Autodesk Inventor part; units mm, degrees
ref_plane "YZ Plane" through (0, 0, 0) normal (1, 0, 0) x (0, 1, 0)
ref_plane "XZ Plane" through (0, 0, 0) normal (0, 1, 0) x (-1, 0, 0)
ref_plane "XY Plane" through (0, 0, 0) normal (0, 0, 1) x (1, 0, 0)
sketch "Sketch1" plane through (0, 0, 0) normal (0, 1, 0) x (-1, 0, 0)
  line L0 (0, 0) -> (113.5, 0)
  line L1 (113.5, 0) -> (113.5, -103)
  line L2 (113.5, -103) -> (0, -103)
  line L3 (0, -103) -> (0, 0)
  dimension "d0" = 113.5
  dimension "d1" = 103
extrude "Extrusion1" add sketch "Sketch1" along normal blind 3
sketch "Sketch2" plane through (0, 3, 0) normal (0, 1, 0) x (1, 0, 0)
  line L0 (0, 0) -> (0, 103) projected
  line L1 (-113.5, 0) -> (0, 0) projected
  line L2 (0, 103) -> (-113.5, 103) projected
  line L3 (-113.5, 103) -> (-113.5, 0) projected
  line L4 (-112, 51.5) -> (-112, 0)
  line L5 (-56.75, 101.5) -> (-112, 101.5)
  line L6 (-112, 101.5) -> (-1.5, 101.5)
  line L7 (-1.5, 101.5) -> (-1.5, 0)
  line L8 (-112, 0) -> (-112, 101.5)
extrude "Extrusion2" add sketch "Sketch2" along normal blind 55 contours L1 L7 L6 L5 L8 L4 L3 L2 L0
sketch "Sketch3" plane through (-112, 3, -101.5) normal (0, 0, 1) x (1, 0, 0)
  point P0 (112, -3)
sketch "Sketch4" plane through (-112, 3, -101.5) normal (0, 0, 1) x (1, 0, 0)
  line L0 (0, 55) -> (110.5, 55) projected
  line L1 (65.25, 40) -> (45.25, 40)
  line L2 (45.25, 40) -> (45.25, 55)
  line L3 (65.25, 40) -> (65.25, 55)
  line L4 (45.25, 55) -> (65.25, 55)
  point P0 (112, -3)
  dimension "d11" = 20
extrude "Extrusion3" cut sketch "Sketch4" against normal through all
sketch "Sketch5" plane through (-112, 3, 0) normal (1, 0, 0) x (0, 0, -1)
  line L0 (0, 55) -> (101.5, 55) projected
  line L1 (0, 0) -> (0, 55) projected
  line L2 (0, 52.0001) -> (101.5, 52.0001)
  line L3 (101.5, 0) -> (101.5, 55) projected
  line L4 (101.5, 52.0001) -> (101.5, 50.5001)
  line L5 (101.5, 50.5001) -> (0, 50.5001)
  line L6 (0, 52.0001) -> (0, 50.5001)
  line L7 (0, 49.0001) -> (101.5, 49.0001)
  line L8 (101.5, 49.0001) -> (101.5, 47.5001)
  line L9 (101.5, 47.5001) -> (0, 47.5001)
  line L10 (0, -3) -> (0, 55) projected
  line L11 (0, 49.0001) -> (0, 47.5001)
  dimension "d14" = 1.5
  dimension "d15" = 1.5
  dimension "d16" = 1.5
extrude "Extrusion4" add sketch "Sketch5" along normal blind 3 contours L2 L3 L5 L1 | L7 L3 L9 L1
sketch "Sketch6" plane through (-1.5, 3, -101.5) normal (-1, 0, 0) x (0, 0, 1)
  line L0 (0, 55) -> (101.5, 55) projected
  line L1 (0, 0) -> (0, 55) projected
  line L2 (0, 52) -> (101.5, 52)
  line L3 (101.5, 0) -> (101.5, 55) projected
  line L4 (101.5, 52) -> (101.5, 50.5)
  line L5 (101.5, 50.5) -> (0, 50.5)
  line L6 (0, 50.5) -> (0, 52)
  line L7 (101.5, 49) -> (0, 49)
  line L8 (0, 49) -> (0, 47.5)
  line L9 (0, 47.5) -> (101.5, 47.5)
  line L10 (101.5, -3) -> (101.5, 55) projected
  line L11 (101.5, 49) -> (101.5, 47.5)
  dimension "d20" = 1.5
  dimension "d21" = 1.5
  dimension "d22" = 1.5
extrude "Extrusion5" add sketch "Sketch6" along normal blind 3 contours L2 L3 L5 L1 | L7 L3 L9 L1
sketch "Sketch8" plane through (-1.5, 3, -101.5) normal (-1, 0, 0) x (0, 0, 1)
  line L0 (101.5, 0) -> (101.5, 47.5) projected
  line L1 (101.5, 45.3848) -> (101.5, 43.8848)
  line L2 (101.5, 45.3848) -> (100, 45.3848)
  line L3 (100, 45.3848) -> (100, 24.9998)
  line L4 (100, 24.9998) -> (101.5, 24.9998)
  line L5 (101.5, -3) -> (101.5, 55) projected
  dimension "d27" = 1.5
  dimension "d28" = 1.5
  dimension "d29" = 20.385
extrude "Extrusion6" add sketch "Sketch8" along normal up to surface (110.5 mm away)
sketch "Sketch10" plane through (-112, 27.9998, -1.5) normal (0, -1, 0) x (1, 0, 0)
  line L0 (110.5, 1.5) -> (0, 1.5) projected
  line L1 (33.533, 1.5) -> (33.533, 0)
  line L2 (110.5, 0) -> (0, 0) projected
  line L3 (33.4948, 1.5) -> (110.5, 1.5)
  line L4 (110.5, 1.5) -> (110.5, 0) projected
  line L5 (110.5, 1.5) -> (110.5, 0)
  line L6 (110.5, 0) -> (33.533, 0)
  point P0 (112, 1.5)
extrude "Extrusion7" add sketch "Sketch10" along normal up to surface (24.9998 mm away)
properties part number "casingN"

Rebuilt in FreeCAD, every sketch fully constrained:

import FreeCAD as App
import Part
import Sketcher

V = App.Vector
Q = App.Units.Quantity


def add_polygon(sketch, points):
    """Adds a closed chain of lines whose ends are joined by coincident constraints."""
    first, n = sketch.GeometryCount, len(points)
    for a, b in zip(points, points[1:] + points[:1]):
        sketch.addGeometry(Part.LineSegment(App.Vector(*a, 0), App.Vector(*b, 0)), False)
    for i in range(n):
        sketch.addConstraint(Sketcher.Constraint("Coincident", first + i, 2, first + (i + 1) % n, 1))

doc = App.newDocument("Part")
body = doc.addObject("PartDesign::Body", "Body")

# Sketch on XZ plane
sketch1 = body.newObject("Sketcher::SketchObject", "Sketch")
sketch1.AttachmentSupport = (doc.getObject("XZ_Plane"), [""])
sketch1.MapMode = "FlatFace"
add_polygon(sketch1, [(-114, 0), (0, 0), (0, -103), (-114, -103)])  # lines 0-3
sketch1.addConstraint([
    Sketcher.Constraint("Horizontal", 0),
    Sketcher.Constraint("Vertical", 1),
    Sketcher.Constraint("Horizontal", 2),
    Sketcher.Constraint("Vertical", 3),
    Sketcher.Constraint("Coincident", 0, 2, -1, 1),
    Sketcher.Constraint("DistanceY", 1, 2, 1, 1, Q("103 mm")),
    Sketcher.Constraint("DistanceX", 0, 1, 0, 2, Q("113.5 mm")),
])
pad1 = body.newObject("PartDesign::Pad", "Pad")
pad1.Profile = sketch1
pad1.Length = 3
pad1.Reversed = True

# Sketch on XZ plane
sketch2 = body.newObject("Sketcher::SketchObject", "Sketch001")
sketch2.AttachmentSupport = (doc.getObject("XZ_Plane"), [""])
sketch2.MapMode = "FlatFace"
sketch2.AttachmentOffset = App.Placement(V(0, 0, -3), App.Rotation())
add_polygon(sketch2, [(-1.5, 0), (0, 0), (0, -103), (-113.5, -103), (-113.5, 0), (-112, 0), (-112, -101.5), (-1.5, -101.5)])  # lines 0-7
sketch2.addConstraint([
    Sketcher.Constraint("Horizontal", 0),
    Sketcher.Constraint("Vertical", 1),
    Sketcher.Constraint("Horizontal", 2),
    Sketcher.Constraint("Vertical", 3),
    Sketcher.Constraint("Horizontal", 4),
    Sketcher.Constraint("Vertical", 5),
    Sketcher.Constraint("Horizontal", 6),
    Sketcher.Constraint("Vertical", 7),
    Sketcher.Constraint("Coincident", 0, 2, -1, 1),
    Sketcher.Constraint("PointOnObject", 3, 2, -1),
    Sketcher.Constraint("Equal", 0, 4),
    Sketcher.Constraint("DistanceY", 1, 2, 1, 1, Q("103 mm")),
    Sketcher.Constraint("DistanceX", 0, 1, 0, 2, Q("1.5 mm")),
    Sketcher.Constraint("DistanceX", 2, 2, 2, 1, Q("113.5 mm")),
    Sketcher.Constraint("DistanceY", 5, 2, 5, 1, Q("101.5 mm")),
])
pad2 = body.newObject("PartDesign::Pad", "Pad001")
pad2.Profile = sketch2
pad2.Length = 55
pad2.Reversed = True

# Sketch on XY plane
sketch3 = body.newObject("Sketcher::SketchObject", "Sketch002")
sketch3.AttachmentSupport = (doc.getObject("XY_Plane"), [""])
sketch3.MapMode = "FlatFace"
sketch3.AttachmentOffset = App.Placement(V(0, 0, -101.5), App.Rotation())
add_polygon(sketch3, [(-47, 58), (-67, 58), (-67, 43), (-47, 43)])  # lines 0-3
sketch3.addConstraint([
    Sketcher.Constraint("Horizontal", 0),
    Sketcher.Constraint("Vertical", 1),
    Sketcher.Constraint("Horizontal", 2),
    Sketcher.Constraint("Vertical", 3),
    Sketcher.Constraint("DistanceX", 0, 2, 0, 1, Q("20 mm")),
    Sketcher.Constraint("DistanceY", 1, 2, 1, 1, Q("15 mm")),
    Sketcher.Constraint("DistanceY", -1, 1, 0, 2, Q("58 mm")),
    Sketcher.Constraint("DistanceX", 0, 2, -1, 1, Q("66.75 mm")),
])
pocket1 = body.newObject("PartDesign::Pocket", "Pocket")
pocket1.Profile = sketch3
pocket1.Type = "ThroughAll"

# Sketch on YZ plane
sketch4 = body.newObject("Sketcher::SketchObject", "Sketch003")
sketch4.AttachmentSupport = (doc.getObject("YZ_Plane"), [""])
sketch4.MapMode = "FlatFace"
sketch4.AttachmentOffset = App.Placement(V(0, 0, -112), App.Rotation())
add_polygon(sketch4, [(55, -101.5), (55, 0), (53.5, 0), (53.5, -101.5)])  # lines 0-3
add_polygon(sketch4, [(52, -101.5), (52, 0), (50.5, 0), (50.5, -101.5)])  # lines 4-7
sketch4.addConstraint([
    Sketcher.Constraint("Vertical", 0),
    Sketcher.Constraint("Horizontal", 1),
    Sketcher.Constraint("Vertical", 2),
    Sketcher.Constraint("Horizontal", 3),
    Sketcher.Constraint("Vertical", 4),
    Sketcher.Constraint("Horizontal", 5),
    Sketcher.Constraint("Vertical", 6),
    Sketcher.Constraint("Horizontal", 7),
    Sketcher.Constraint("PointOnObject", 0, 2, -1),
    Sketcher.Constraint("PointOnObject", 4, 2, -1),
    Sketcher.Constraint("Horizontal", 3, 2, 6, 2),
    Sketcher.Constraint("Equal", 3, 5),
    Sketcher.Constraint("DistanceX", 1, 2, 1, 1, Q("1.5 mm")),
    Sketcher.Constraint("DistanceX", 4, 2, 1, 2, Q("1.5 mm")),
    Sketcher.Constraint("DistanceY", 0, 1, 0, 2, Q("101.5 mm")),
    Sketcher.Constraint("DistanceX", -1, 1, 0, 2, Q("55 mm")),
])
pad3 = body.newObject("PartDesign::Pad", "Pad002")
pad3.Profile = sketch4
pad3.Length = 3

# Sketch on YZ plane
sketch5 = body.newObject("Sketcher::SketchObject", "Sketch004")
sketch5.AttachmentSupport = (doc.getObject("YZ_Plane"), [""])
sketch5.MapMode = "FlatFace"
sketch5.AttachmentOffset = App.Placement(V(0, 0, -1.5), App.Rotation())
add_polygon(sketch5, [(55, 0), (55, -101.5), (53.5, -101.5), (53.5, 0)])  # lines 0-3
add_polygon(sketch5, [(52, 0), (52, -101.5), (50.5, -101.5), (50.5, 0)])  # lines 4-7
sketch5.addConstraint([
    Sketcher.Constraint("Vertical", 0),
    Sketcher.Constraint("Horizontal", 1),
    Sketcher.Constraint("Vertical", 2),
    Sketcher.Constraint("Horizontal", 3),
    Sketcher.Constraint("Vertical", 4),
    Sketcher.Constraint("Horizontal", 5),
    Sketcher.Constraint("Vertical", 6),
    Sketcher.Constraint("Horizontal", 7),
    Sketcher.Constraint("PointOnObject", 2, 2, -1),
    Sketcher.Constraint("PointOnObject", 6, 2, -1),
    Sketcher.Constraint("Horizontal", 1, 2, 4, 2),
    Sketcher.Constraint("Equal", 3, 5),
    Sketcher.Constraint("DistanceX", 1, 2, 1, 1, Q("1.5 mm")),
    Sketcher.Constraint("DistanceX", 4, 2, 1, 2, Q("1.5 mm")),
    Sketcher.Constraint("DistanceY", 0, 2, 0, 1, Q("101.5 mm")),
    Sketcher.Constraint("DistanceX", -1, 1, 0, 2, Q("55 mm")),
])
pad4 = body.newObject("PartDesign::Pad", "Pad003")
pad4.Profile = sketch5
pad4.Length = 3
pad4.Reversed = True

# Sketch on YZ plane
sketch6 = body.newObject("Sketcher::SketchObject", "Sketch005")
sketch6.AttachmentSupport = (doc.getObject("YZ_Plane"), [""])
sketch6.MapMode = "FlatFace"
sketch6.AttachmentOffset = App.Placement(V(0, 0, -1.5), App.Rotation())
add_polygon(sketch6, [(28, -1.5), (28, 0), (48.4, 0), (48.4, -1.5)])  # lines 0-3
sketch6.addConstraint([
    Sketcher.Constraint("Vertical", 0),
    Sketcher.Constraint("Horizontal", 1),
    Sketcher.Constraint("Vertical", 2),
    Sketcher.Constraint("Horizontal", 3),
    Sketcher.Constraint("PointOnObject", 0, 2, -1),
    Sketcher.Constraint("DistanceY", 0, 1, 0, 2, Q("1.5 mm")),
    Sketcher.Constraint("DistanceX", 1, 1, 1, 2, Q("20.385 mm")),
    Sketcher.Constraint("DistanceX", -1, 1, 0, 2, Q("27.9998 mm")),
])
pad5 = body.newObject("PartDesign::Pad", "Pad004")
pad5.Profile = sketch6
pad5.Length = 110.5
pad5.Reversed = True

# Sketch on XZ plane
sketch7 = body.newObject("Sketcher::SketchObject", "Sketch006")
sketch7.AttachmentSupport = (doc.getObject("XZ_Plane"), [""])
sketch7.MapMode = "FlatFace"
sketch7.AttachmentOffset = App.Placement(V(0, 0, -27.9998), App.Rotation())
add_polygon(sketch7, [(-1.5, -1.5), (-1.5, 0), (-78.5, 0), (-78.5, -1.5)])  # lines 0-3
sketch7.addConstraint([
    Sketcher.Constraint("Vertical", 0),
    Sketcher.Constraint("Horizontal", 1),
    Sketcher.Constraint("Vertical", 2),
    Sketcher.Constraint("Horizontal", 3),
    Sketcher.Constraint("PointOnObject", 0, 2, -1),
    Sketcher.Constraint("DistanceY", 0, 1, 0, 2, Q("1.5 mm")),
    Sketcher.Constraint("DistanceX", 0, 2, -1, 1, Q("1.5 mm")),
    Sketcher.Constraint("DistanceX", 1, 2, 1, 1, Q("76.967 mm")),
])
pad6 = body.newObject("PartDesign::Pad", "Pad005")
pad6.Profile = sketch7
pad6.Length = 24.9998

doc.recompute()
